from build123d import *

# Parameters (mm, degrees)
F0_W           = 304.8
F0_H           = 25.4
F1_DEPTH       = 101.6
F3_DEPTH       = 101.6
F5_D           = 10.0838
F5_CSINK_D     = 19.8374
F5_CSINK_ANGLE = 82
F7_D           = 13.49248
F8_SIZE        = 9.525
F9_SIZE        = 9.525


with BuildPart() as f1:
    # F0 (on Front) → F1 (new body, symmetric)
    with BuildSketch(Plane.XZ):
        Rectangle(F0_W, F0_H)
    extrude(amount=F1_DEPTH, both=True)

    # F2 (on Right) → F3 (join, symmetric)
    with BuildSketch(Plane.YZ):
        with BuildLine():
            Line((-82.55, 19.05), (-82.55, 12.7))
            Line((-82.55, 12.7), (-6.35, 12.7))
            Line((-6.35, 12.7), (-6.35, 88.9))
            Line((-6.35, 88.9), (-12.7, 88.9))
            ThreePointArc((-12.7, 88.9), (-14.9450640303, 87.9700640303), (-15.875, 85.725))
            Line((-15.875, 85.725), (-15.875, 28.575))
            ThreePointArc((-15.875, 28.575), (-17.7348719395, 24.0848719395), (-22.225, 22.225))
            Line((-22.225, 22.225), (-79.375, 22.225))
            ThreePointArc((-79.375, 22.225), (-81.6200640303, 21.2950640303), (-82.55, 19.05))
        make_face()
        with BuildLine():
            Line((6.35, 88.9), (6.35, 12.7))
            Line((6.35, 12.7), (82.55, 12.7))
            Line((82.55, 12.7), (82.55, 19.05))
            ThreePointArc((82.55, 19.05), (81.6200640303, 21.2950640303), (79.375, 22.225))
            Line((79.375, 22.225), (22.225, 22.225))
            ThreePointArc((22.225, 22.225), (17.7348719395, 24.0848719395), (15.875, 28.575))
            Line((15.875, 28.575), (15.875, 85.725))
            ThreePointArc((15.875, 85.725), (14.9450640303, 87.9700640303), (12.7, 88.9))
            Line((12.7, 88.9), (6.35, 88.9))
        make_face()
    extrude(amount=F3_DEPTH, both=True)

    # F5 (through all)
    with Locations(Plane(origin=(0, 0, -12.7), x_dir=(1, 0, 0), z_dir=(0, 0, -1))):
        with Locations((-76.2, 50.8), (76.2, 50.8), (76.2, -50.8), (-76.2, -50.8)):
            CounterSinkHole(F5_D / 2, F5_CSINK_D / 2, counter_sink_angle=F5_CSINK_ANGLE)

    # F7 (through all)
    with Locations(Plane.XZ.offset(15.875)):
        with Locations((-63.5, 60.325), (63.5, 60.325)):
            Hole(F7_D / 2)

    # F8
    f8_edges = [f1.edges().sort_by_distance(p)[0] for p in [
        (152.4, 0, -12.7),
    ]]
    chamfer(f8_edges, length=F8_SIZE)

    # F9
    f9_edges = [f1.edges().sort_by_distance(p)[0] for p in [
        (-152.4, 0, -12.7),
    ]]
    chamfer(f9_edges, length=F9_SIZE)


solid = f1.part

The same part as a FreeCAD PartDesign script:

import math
import FreeCAD as App
import Part
import Sketcher
Q = App.Units.Quantity


def edges_at(feature, points):
    """Names of the edges that pass closest to the given points."""
    edges = feature.Shape.Edges
    near = lambda p: min(range(len(edges)), key=lambda i: edges[i].distToShape(Part.Vertex(*p))[0])
    return sorted({f"Edge{near(p) + 1}" for p in points})

doc = App.newDocument("Part")
body = doc.addObject("PartDesign::Body", "Body")

# Sketch on XZ plane
sketch1 = body.newObject("Sketcher::SketchObject", "Sketch")
sketch1.AttachmentSupport = (doc.getObject("XZ_Plane"), [""])
sketch1.MapMode = "FlatFace"
sketch1.addGeometry([
    Part.LineSegment(App.Vector(-152, 13, 0), App.Vector(-152, -13, 0)),
    Part.LineSegment(App.Vector(-152, -13, 0), App.Vector(152, -13, 0)),
    Part.LineSegment(App.Vector(152, -13, 0), App.Vector(152, 13, 0)),
    Part.LineSegment(App.Vector(152, 13, 0), App.Vector(-152, 13, 0)),
], False)
sketch1.addConstraint([
    Sketcher.Constraint("Coincident", 0, 2, 1, 1),
    Sketcher.Constraint("Coincident", 1, 2, 2, 1),
    Sketcher.Constraint("Coincident", 2, 2, 3, 1),
    Sketcher.Constraint("Coincident", 3, 2, 0, 1),
    Sketcher.Constraint("Vertical", 0),
    Sketcher.Constraint("Horizontal", 1),
    Sketcher.Constraint("Vertical", 2),
    Sketcher.Constraint("Horizontal", 3),
    Sketcher.Constraint("Symmetric", 0, 2, 2, 2, -1, 1),
    Sketcher.Constraint("DistanceX", 1, 1, 1, 2, Q("12 in")),
    Sketcher.Constraint("DistanceY", 0, 2, 0, 1, Q("1 in")),
])
pad1 = body.newObject("PartDesign::Pad", "Pad")
pad1.Profile = sketch1
pad1.Length = Q("8 in")
pad1.Midplane = True

# Sketch on YZ plane
sketch2 = body.newObject("Sketcher::SketchObject", "Sketch001")
sketch2.AttachmentSupport = (doc.getObject("YZ_Plane"), [""])
sketch2.MapMode = "FlatFace"
sketch2.addGeometry([
    Part.LineSegment(App.Vector(-82.5, 19.1, 0), App.Vector(-82.5, 12.7, 0)),  # 0
    Part.LineSegment(App.Vector(-82.5, 12.7, 0), App.Vector(-6.3, 12.7, 0)),  # 1
    Part.LineSegment(App.Vector(-6.3, 12.7, 0), App.Vector(-6.3, 88.9, 0)),  # 2
    Part.LineSegment(App.Vector(-6.3, 88.9, 0), App.Vector(-12.7, 88.9, 0)),  # 3
    Part.ArcOfCircle(Part.Circle(App.Vector(-12.7, 85.7, 0), App.Vector(0, 0, 1), 3.2), math.radians(90), math.radians(180)),  # 4
    Part.LineSegment(App.Vector(-15.9, 85.7, 0), App.Vector(-15.9, 28.6, 0)),  # 5
    Part.ArcOfCircle(Part.Circle(App.Vector(-22.2, 28.6, 0), App.Vector(0, 0, 1), 6.3), math.radians(-90), math.radians(0)),  # 6
    Part.LineSegment(App.Vector(-22.2, 22.2, 0), App.Vector(-79.4, 22.2, 0)),  # 7
    Part.ArcOfCircle(Part.Circle(App.Vector(-79.4, 19.1, 0), App.Vector(0, 0, 1), 3.2), math.radians(90), math.radians(180)),  # 8
    Part.LineSegment(App.Vector(6.3, 88.9, 0), App.Vector(6.3, 12.7, 0)),  # 9
    Part.LineSegment(App.Vector(6.3, 12.7, 0), App.Vector(82.5, 12.7, 0)),  # 10
    Part.LineSegment(App.Vector(82.5, 12.7, 0), App.Vector(82.5, 19.1, 0)),  # 11
    Part.ArcOfCircle(Part.Circle(App.Vector(79.4, 19.1, 0), App.Vector(0, 0, 1), 3.2), math.radians(0), math.radians(90)),  # 12
    Part.LineSegment(App.Vector(79.4, 22.2, 0), App.Vector(22.2, 22.2, 0)),  # 13
    Part.ArcOfCircle(Part.Circle(App.Vector(22.2, 28.6, 0), App.Vector(0, 0, 1), 6.3), math.radians(180), math.radians(270)),  # 14
    Part.LineSegment(App.Vector(15.9, 28.6, 0), App.Vector(15.9, 85.7, 0)),  # 15
    Part.ArcOfCircle(Part.Circle(App.Vector(12.7, 85.7, 0), App.Vector(0, 0, 1), 3.2), math.radians(0), math.radians(90)),  # 16
    Part.LineSegment(App.Vector(12.7, 88.9, 0), App.Vector(6.3, 88.9, 0)),  # 17
], False)
sketch2.addConstraint([
    Sketcher.Constraint("Coincident", 0, 2, 1, 1),
    Sketcher.Constraint("Coincident", 1, 2, 2, 1),
    Sketcher.Constraint("Coincident", 2, 2, 3, 1),
    Sketcher.Constraint("Tangent", 3, 2, 4, 1),
    Sketcher.Constraint("Tangent", 4, 2, 5, 1),
    Sketcher.Constraint("Tangent", 5, 2, 6, 2),
    Sketcher.Constraint("Tangent", 6, 1, 7, 1),
    Sketcher.Constraint("Tangent", 7, 2, 8, 1),
    Sketcher.Constraint("Tangent", 8, 2, 0, 1),
    Sketcher.Constraint("Coincident", 9, 2, 10, 1),
    Sketcher.Constraint("Coincident", 10, 2, 11, 1),
    Sketcher.Constraint("Tangent", 11, 2, 12, 1),
    Sketcher.Constraint("Tangent", 12, 2, 13, 1),
    Sketcher.Constraint("Tangent", 13, 2, 14, 2),
    Sketcher.Constraint("Tangent", 14, 1, 15, 1),
    Sketcher.Constraint("Tangent", 15, 2, 16, 1),
    Sketcher.Constraint("Tangent", 16, 2, 17, 1),
    Sketcher.Constraint("Coincident", 17, 2, 9, 1),
    Sketcher.Constraint("Vertical", 0),
    Sketcher.Constraint("Horizontal", 1),
    Sketcher.Constraint("Vertical", 2),
    Sketcher.Constraint("Horizontal", 3),
    Sketcher.Constraint("Vertical", 5),
    Sketcher.Constraint("Horizontal", 7),
    Sketcher.Constraint("Vertical", 9),
    Sketcher.Constraint("Horizontal", 10),
    Sketcher.Constraint("Vertical", 11),
    Sketcher.Constraint("Horizontal", 13),
    Sketcher.Constraint("Vertical", 15),
    Sketcher.Constraint("Horizontal", 17),
    Sketcher.Constraint("Equal", 4, 8),
    Sketcher.Constraint("Equal", 8, 12),
    Sketcher.Constraint("Equal", 6, 14),
    Sketcher.Constraint("Equal", 12, 16),
    Sketcher.Constraint("Symmetric", 8, 3, 12, 3, -2),
    Sketcher.Constraint("Symmetric", 4, 3, 16, 3, -2),
    Sketcher.Constraint("Symmetric", 1, 2, 9, 2, -2),
    Sketcher.Constraint("Equal", 17, 0),
    Sketcher.Constraint("Equal", 10, 2),
    Sketcher.Constraint("DistanceX", 1, 1, 1, 2, Q("3 in")),
    Sketcher.Constraint("Radius", 6, Q("0.25 in")),
    Sketcher.Constraint("Radius", 4, Q("0.125 in")),
    Sketcher.Constraint("DistanceX", 6, 3, 12, 3, Q("4 in")),
    Sketcher.Constraint("DistanceX", 4, 3, 16, 3, Q("1 in")),
    Sketcher.Constraint("DistanceY", -1, 1, 0, 2, Q("0.5 in")),
])
pad2 = body.newObject("PartDesign::Pad", "Pad001")
pad2.Profile = sketch2
pad2.Length = Q("8 in")
pad2.Midplane = True

# Sketch on XY plane
sketch3 = body.newObject("Sketcher::SketchObject", "Sketch002")
sketch3.AttachmentSupport = (doc.getObject("XY_Plane"), [""])
sketch3.MapMode = "FlatFace"
sketch3.AttachmentOffset = App.Placement(App.Vector(0, 0, -0.5 * 25.4), App.Rotation())
sketch3.addGeometry([
    Part.Circle(App.Vector(-76, -51, 0), App.Vector(0, 0, 1), 5),
    Part.Circle(App.Vector(76, -51, 0), App.Vector(0, 0, 1), 5),
    Part.Circle(App.Vector(76, 51, 0), App.Vector(0, 0, 1), 5),
    Part.Circle(App.Vector(-76, 51, 0), App.Vector(0, 0, 1), 5),
], False)
sketch3.addConstraint([
    Sketcher.Constraint("Equal", 0, 1),
    Sketcher.Constraint("Equal", 1, 2),
    Sketcher.Constraint("Equal", 2, 3),
    Sketcher.Constraint("Symmetric", 0, 3, 2, 3, -1, 1),
    Sketcher.Constraint("Symmetric", 1, 3, 3, 3, -1, 1),
    Sketcher.Constraint("Symmetric", 0, 3, 1, 3, -2),
    Sketcher.Constraint("Diameter", 0, Q("0.397 in")),
    Sketcher.Constraint("DistanceX", 0, 3, -1, 1, Q("3 in")),
    Sketcher.Constraint("DistanceY", 0, 3, -1, 1, Q("2 in")),
])
doc.recompute()
hole = body.newObject("PartDesign::Hole", "Hole")
hole.Profile = sketch3
hole.ThreadType = "None"
hole.Diameter = Q("0.397 in")
hole.DepthType = "ThroughAll"
hole.HoleCutType = "Countersink"
hole.HoleCutDiameter = Q("0.781 in")
hole.HoleCutCountersinkAngle = 82
hole.Reversed = True

# Sketch on XZ plane
sketch4 = body.newObject("Sketcher::SketchObject", "Sketch003")
sketch4.AttachmentSupport = (doc.getObject("XZ_Plane"), [""])
sketch4.MapMode = "FlatFace"
sketch4.AttachmentOffset = App.Placement(App.Vector(0, 0, 0.625 * 25.4), App.Rotation())
sketch4.addGeometry([
    Part.Circle(App.Vector(-64, 60, 0), App.Vector(0, 0, 1), 7),
    Part.Circle(App.Vector(64, 60, 0), App.Vector(0, 0, 1), 7),
], False)
sketch4.addConstraint([
    Sketcher.Constraint("Equal", 0, 1),
    Sketcher.Constraint("Symmetric", 0, 3, 1, 3, -2),
    Sketcher.Constraint("DistanceX", 0, 3, 1, 3, Q("5 in")),
    Sketcher.Constraint("Diameter", 0, Q("0.5312 in")),
    Sketcher.Constraint("DistanceY", -1, 1, 0, 3, Q("2.375 in")),
])
doc.recompute()
hole2 = body.newObject("PartDesign::Hole", "Hole001")
hole2.Profile = sketch4
hole2.ThreadType = "None"
hole2.Diameter = Q("0.5312 in")
hole2.DepthType = "ThroughAll"
doc.recompute()

chamfer = body.newObject("PartDesign::Chamfer", "Chamfer")
chamfer.Base = (hole2, edges_at(hole2, [(152.4, 0, -12.7)]))
chamfer.Size = Q("0.375 in")
doc.recompute()

chamfer2 = body.newObject("PartDesign::Chamfer", "Chamfer001")
chamfer2.Base = (chamfer, edges_at(chamfer, [(-152.4, 0, -12.7)]))
chamfer2.Size = Q("0.375 in")

doc.recompute()
